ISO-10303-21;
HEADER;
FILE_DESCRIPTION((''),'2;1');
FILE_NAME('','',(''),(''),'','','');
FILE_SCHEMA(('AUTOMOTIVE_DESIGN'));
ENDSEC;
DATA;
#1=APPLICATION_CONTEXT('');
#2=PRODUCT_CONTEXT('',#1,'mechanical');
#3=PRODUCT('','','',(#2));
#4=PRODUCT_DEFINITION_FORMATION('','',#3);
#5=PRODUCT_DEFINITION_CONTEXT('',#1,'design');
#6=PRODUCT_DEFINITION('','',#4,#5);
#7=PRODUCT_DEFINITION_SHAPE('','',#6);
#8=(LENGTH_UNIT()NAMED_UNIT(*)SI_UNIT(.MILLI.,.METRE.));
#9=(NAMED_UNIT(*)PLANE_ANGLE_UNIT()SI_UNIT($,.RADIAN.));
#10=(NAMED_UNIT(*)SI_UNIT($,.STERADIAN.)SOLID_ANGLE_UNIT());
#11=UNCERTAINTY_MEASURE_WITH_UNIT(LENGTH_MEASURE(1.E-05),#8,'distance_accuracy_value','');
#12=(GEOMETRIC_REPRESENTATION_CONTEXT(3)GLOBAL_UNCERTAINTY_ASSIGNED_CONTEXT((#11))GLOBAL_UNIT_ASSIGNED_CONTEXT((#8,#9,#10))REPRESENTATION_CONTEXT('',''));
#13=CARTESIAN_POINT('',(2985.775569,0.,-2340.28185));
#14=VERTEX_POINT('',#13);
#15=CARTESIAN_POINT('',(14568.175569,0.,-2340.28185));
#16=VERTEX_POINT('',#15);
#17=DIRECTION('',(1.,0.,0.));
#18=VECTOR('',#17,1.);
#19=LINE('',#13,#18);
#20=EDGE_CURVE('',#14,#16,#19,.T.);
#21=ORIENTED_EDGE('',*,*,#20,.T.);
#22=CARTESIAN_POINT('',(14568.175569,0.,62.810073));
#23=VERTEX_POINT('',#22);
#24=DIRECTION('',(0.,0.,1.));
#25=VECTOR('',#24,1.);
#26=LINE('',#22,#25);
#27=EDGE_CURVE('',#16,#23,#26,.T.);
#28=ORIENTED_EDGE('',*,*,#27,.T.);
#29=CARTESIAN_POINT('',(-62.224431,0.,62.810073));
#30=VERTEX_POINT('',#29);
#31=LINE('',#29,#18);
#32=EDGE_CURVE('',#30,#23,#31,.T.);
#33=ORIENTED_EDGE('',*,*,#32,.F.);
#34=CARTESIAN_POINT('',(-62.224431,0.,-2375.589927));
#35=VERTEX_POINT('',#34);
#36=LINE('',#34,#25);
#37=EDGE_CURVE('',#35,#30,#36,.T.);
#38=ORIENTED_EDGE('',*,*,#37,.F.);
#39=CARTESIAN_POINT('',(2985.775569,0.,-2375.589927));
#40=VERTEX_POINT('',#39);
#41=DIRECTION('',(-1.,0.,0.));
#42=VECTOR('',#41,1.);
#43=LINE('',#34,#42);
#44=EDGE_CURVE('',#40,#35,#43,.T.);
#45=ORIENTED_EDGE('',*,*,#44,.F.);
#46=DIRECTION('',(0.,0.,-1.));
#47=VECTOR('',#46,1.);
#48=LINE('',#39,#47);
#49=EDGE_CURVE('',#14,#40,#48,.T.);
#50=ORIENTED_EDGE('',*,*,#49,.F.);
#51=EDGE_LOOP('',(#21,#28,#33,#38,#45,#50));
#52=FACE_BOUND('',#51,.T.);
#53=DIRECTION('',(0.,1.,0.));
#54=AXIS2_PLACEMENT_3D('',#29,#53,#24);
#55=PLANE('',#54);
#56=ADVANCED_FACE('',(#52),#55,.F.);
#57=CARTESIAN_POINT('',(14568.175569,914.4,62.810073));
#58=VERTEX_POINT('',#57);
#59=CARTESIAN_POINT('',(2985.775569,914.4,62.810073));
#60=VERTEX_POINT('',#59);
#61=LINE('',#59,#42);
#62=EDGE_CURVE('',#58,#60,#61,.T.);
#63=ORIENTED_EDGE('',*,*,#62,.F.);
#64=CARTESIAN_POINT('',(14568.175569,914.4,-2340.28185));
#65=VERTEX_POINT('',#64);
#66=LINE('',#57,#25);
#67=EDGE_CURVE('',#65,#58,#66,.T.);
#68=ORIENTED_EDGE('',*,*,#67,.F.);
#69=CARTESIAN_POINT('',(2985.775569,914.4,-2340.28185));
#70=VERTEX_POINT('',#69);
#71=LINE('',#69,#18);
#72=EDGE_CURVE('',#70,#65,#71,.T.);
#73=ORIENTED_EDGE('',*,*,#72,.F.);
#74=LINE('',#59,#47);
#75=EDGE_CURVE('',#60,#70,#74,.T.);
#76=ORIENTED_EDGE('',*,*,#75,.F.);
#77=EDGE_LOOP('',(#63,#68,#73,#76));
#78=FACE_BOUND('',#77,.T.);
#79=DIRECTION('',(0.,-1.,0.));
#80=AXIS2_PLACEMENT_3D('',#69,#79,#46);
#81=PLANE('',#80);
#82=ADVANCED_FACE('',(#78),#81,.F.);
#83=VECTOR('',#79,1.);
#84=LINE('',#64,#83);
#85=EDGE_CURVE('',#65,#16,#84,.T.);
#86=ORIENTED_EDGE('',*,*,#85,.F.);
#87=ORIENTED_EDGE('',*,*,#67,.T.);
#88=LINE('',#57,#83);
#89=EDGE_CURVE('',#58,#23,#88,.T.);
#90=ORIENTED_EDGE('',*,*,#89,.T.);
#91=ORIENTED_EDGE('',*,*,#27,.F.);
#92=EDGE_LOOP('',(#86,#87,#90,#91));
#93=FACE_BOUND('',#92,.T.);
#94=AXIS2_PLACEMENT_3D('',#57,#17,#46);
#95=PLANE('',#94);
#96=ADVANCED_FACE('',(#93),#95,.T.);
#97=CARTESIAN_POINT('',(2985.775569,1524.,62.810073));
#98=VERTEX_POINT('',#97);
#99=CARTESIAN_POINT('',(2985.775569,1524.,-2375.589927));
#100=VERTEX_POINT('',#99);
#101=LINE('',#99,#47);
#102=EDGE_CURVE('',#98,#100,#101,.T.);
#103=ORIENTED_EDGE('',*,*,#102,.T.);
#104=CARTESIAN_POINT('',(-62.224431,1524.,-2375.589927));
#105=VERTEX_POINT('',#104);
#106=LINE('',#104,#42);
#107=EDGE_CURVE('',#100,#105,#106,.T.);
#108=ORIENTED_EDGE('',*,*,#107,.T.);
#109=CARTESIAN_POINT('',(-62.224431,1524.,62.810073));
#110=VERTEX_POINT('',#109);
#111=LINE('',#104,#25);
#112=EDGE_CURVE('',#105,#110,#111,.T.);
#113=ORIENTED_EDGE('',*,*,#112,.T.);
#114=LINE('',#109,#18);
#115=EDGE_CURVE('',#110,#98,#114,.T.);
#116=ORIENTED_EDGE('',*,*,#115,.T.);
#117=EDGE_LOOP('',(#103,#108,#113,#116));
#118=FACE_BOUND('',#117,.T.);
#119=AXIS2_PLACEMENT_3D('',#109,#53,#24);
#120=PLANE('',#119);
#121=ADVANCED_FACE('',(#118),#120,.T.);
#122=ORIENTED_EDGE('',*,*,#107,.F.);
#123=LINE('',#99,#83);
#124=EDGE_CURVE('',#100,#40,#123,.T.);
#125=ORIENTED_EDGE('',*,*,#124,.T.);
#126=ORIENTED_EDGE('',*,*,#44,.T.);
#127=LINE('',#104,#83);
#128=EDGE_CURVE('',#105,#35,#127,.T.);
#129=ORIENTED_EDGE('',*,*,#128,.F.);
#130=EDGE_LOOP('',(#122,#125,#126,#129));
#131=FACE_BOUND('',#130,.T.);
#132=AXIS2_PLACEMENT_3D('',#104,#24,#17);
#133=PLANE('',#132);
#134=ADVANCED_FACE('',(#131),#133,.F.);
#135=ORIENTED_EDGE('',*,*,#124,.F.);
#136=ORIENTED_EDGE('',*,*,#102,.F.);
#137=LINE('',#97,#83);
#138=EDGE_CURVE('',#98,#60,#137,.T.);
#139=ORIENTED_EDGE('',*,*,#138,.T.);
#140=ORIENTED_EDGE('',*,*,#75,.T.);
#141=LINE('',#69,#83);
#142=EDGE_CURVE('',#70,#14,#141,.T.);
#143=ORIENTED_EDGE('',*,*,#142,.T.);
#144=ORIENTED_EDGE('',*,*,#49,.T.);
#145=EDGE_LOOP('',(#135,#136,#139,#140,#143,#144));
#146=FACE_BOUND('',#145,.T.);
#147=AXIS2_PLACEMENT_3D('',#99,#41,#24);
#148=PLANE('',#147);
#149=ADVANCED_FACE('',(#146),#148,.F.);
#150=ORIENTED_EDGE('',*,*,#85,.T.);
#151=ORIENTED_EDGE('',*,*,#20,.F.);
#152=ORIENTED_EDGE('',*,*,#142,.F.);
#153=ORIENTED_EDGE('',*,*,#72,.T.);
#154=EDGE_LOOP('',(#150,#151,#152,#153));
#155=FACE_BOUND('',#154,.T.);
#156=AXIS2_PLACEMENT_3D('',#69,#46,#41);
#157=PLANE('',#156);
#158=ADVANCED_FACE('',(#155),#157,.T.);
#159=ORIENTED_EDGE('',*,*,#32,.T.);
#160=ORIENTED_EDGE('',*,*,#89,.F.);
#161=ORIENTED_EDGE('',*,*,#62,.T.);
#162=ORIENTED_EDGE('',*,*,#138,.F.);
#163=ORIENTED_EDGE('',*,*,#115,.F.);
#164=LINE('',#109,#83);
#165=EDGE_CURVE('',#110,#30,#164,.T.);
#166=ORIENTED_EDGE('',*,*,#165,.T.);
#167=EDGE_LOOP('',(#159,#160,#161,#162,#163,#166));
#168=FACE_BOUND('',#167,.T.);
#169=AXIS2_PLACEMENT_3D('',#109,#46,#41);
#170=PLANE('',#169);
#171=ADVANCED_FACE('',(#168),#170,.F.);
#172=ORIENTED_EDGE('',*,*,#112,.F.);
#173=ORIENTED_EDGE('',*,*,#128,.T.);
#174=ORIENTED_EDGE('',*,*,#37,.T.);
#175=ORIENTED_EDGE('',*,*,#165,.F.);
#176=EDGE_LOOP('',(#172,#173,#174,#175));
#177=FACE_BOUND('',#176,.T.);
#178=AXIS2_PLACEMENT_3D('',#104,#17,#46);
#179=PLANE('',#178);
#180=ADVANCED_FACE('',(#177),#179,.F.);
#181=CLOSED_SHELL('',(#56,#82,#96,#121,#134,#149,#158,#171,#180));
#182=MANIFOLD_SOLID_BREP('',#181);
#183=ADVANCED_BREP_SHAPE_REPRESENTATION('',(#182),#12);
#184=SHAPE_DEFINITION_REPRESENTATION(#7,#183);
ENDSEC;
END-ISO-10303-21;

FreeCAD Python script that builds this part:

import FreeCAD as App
import Part
import Sketcher

V = App.Vector
Q = App.Units.Quantity


def add_polygon(sketch, points):
    """Adds a closed chain of lines whose ends are joined by coincident constraints."""
    first, n = sketch.GeometryCount, len(points)
    for a, b in zip(points, points[1:] + points[:1]):
        sketch.addGeometry(Part.LineSegment(App.Vector(*a, 0), App.Vector(*b, 0)), False)
    for i in range(n):
        sketch.addConstraint(Sketcher.Constraint("Coincident", first + i, 2, first + (i + 1) % n, 1))

doc = App.newDocument("Part")
body = doc.addObject("PartDesign::Body", "Body")

# Sketch on XZ plane
sketch1 = body.newObject("Sketcher::SketchObject", "Sketch")
sketch1.AttachmentSupport = (doc.getObject("XZ_Plane"), [""])
sketch1.MapMode = "FlatFace"
add_polygon(sketch1, [(-62, -2376), (-62, 63), (2986, 63), (2986, -2376)])  # lines 0-3
sketch1.addConstraint(Sketcher.Constraint("Vertical", 0))
sketch1.addConstraint(Sketcher.Constraint("Horizontal", 1))
sketch1.addConstraint(Sketcher.Constraint("Vertical", 2))
sketch1.addConstraint(Sketcher.Constraint("Horizontal", 3))
sketch1.addConstraint(Sketcher.Constraint("DistanceX", 1, 1, 1, 2, Q("120 in")))
sketch1.addConstraint(Sketcher.Constraint("DistanceY", 0, 1, 0, 2, Q("96 in")))
sketch1.addConstraint(Sketcher.Constraint("DistanceX", 0, 2, -1, 1, Q("62.224431 mm")))
sketch1.addConstraint(Sketcher.Constraint("DistanceY", -1, 1, 0, 2, Q("62.810073 mm")))
pad1 = body.newObject("PartDesign::Pad", "Pad")
pad1.Profile = sketch1
pad1.Length = Q("60 in")
pad1.Reversed = True

# Sketch on XZ plane
sketch2 = body.newObject("Sketcher::SketchObject", "Sketch001")
sketch2.AttachmentSupport = (doc.getObject("XZ_Plane"), [""])
sketch2.MapMode = "FlatFace"
add_polygon(sketch2, [(2986, 63), (2986, -2340), (14568, -2340), (14568, 63)])  # lines 0-3
sketch2.addConstraint(Sketcher.Constraint("Vertical", 0))
sketch2.addConstraint(Sketcher.Constraint("Horizontal", 1))
sketch2.addConstraint(Sketcher.Constraint("Vertical", 2))
sketch2.addConstraint(Sketcher.Constraint("Horizontal", 3))
sketch2.addConstraint(Sketcher.Constraint("DistanceX", 1, 1, 1, 2, Q("456 in")))
sketch2.addConstraint(Sketcher.Constraint("DistanceY", 0, 2, 0, 1, Q("2403.091922 mm")))
sketch2.addConstraint(Sketcher.Constraint("DistanceX", -1, 1, 0, 2, Q("2985.775569 mm")))
sketch2.addConstraint(Sketcher.Constraint("DistanceY", 0, 2, -1, 1, Q("2340.28185 mm")))
pad2 = body.newObject("PartDesign::Pad", "Pad001")
pad2.Profile = sketch2
pad2.Length = Q("36 in")
pad2.Reversed = True

doc.recompute()
